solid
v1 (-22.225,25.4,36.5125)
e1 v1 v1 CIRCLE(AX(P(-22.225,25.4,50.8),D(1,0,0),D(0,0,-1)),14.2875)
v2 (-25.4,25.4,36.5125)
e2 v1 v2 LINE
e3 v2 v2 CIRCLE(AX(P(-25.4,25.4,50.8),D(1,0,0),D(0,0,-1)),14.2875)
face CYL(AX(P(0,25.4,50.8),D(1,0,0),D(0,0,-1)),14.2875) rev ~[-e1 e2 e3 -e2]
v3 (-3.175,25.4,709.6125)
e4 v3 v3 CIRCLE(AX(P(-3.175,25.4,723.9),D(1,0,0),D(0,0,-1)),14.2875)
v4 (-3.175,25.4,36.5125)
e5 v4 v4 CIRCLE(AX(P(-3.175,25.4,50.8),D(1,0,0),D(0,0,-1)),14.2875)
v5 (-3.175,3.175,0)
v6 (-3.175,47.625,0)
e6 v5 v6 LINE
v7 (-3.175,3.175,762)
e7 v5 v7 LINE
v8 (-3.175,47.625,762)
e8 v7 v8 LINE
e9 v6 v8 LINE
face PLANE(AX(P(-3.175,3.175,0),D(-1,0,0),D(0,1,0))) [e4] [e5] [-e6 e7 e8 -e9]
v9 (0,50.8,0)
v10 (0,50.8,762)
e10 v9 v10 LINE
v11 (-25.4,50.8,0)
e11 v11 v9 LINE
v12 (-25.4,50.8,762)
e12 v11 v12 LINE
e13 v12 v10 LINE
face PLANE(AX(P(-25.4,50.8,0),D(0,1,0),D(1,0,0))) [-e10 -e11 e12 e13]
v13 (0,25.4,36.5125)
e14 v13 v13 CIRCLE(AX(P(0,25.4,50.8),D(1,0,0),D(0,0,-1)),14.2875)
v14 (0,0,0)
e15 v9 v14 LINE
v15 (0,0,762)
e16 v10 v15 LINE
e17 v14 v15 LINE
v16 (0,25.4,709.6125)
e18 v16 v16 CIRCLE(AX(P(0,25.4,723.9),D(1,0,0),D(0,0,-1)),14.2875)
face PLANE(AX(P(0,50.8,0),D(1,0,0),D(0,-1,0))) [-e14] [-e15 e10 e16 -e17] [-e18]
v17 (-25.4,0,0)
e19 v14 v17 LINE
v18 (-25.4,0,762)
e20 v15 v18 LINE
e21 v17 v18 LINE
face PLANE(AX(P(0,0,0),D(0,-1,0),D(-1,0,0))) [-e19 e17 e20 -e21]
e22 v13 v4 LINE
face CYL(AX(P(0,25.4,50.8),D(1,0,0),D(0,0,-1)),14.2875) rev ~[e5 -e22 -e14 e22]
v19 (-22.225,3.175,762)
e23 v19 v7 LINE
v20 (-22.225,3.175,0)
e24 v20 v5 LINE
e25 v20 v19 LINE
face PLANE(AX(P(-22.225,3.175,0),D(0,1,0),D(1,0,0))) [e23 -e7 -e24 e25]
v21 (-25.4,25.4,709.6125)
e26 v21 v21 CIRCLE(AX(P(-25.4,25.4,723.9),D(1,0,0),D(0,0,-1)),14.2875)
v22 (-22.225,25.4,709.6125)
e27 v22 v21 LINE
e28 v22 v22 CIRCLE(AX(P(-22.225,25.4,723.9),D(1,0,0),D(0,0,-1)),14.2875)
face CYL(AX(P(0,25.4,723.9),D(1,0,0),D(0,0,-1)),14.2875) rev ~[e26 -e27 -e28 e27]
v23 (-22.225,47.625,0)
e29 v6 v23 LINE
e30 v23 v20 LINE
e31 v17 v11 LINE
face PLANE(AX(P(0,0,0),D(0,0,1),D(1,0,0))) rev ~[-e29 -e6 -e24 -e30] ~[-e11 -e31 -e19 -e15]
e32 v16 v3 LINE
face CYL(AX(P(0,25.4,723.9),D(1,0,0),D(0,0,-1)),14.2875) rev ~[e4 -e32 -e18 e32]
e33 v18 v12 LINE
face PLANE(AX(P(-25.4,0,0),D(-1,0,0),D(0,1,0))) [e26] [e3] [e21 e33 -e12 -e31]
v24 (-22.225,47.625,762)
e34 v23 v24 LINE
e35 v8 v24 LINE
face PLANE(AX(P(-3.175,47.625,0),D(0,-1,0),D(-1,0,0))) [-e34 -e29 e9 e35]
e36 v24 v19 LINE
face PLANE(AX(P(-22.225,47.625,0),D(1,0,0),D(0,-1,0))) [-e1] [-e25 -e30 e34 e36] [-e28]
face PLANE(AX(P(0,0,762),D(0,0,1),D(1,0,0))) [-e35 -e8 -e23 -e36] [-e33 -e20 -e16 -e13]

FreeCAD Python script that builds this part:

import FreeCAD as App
import Part
import Sketcher
from FreeCAD import Vector
Q = App.Units.Quantity


def add_polygon(sketch, points):
    """Adds a closed chain of lines whose ends are joined by coincident constraints."""
    first, n = sketch.GeometryCount, len(points)
    for a, b in zip(points, points[1:] + points[:1]):
        sketch.addGeometry(Part.LineSegment(App.Vector(*a, 0), App.Vector(*b, 0)), False)
    for i in range(n):
        sketch.addConstraint(Sketcher.Constraint("Coincident", first + i, 2, first + (i + 1) % n, 1))

doc = App.newDocument("Part")
body = doc.addObject("PartDesign::Body", "Body")

sketch1 = body.newObject("Sketcher::SketchObject", "Sketch")
sketch1.AttachmentSupport = (doc.getObject("XY_Plane"), [""])
sketch1.MapMode = "FlatFace"
add_polygon(sketch1, [(-25, 0), (0, 0), (0, 51), (-25, 51)])
add_polygon(sketch1, [(-3, 3), (-22, 3), (-22, 48), (-3, 48)])
sketch1.addConstraint(Sketcher.Constraint("Horizontal", 0))
sketch1.addConstraint(Sketcher.Constraint("Vertical", 1))
sketch1.addConstraint(Sketcher.Constraint("Horizontal", 2))
sketch1.addConstraint(Sketcher.Constraint("Vertical", 3))
sketch1.addConstraint(Sketcher.Constraint("Horizontal", 4))
sketch1.addConstraint(Sketcher.Constraint("Vertical", 5))
sketch1.addConstraint(Sketcher.Constraint("Horizontal", 6))
sketch1.addConstraint(Sketcher.Constraint("Vertical", 7))
sketch1.addConstraint(Sketcher.Constraint("Coincident", 0, 2, -1, 1))
sketch1.addConstraint(Sketcher.Constraint("DistanceX", 0, 1, 0, 2, Q("1 in")))
sketch1.addConstraint(Sketcher.Constraint("DistanceY", 1, 1, 1, 2, Q("2 in")))
sketch1.addConstraint(Sketcher.Constraint("DistanceY", -1, 1, 4, 2, Q("0.125 in")))
sketch1.addConstraint(Sketcher.Constraint("DistanceX", 6, 2, -1, 1, Q("0.125 in")))
sketch1.addConstraint(Sketcher.Constraint("DistanceX", 3, 2, 4, 2, Q("0.125 in")))
sketch1.addConstraint(Sketcher.Constraint("DistanceY", 5, 2, 2, 2, Q("0.125 in")))
pad1 = body.newObject("PartDesign::Pad", "Pad")
pad1.Profile = sketch1
pad1.Length = Q("30 in")

sketch2 = body.newObject("Sketcher::SketchObject", "Sketch001")
sketch2.AttachmentSupport = (doc.getObject("YZ_Plane"), [""])
sketch2.MapMode = "FlatFace"
sketch2.addGeometry(Part.Circle(Vector(25, 51, 0), Vector(0, 0, 1), 14), False)
sketch2.addConstraint(Sketcher.Constraint("Diameter", 0, Q("1.125 in")))
sketch2.addConstraint(Sketcher.Constraint("DistanceX", -1, 1, 0, 3, Q("1 in")))
sketch2.addConstraint(Sketcher.Constraint("DistanceY", -1, 1, 0, 3, Q("2 in")))
pocket1 = body.newObject("PartDesign::Pocket", "Pocket")
pocket1.Profile = sketch2
pocket1.Length = 930.1395

sketch3 = body.newObject("Sketcher::SketchObject", "Sketch002")
sketch3.AttachmentSupport = (doc.getObject("YZ_Plane"), [""])
sketch3.MapMode = "FlatFace"
sketch3.addGeometry(Part.Circle(Vector(25, 724, 0), Vector(0, 0, 1), 14), False)
sketch3.addConstraint(Sketcher.Constraint("Diameter", 0, Q("1.125 in")))
sketch3.addConstraint(Sketcher.Constraint("DistanceX", -1, 1, 0, 3, Q("1 in")))
sketch3.addConstraint(Sketcher.Constraint("DistanceY", -1, 1, 0, 3, Q("28.5 in")))
pocket2 = body.newObject("PartDesign::Pocket", "Pocket001")
pocket2.Profile = sketch3
pocket2.Length = Q("1 in")

doc.recompute()
